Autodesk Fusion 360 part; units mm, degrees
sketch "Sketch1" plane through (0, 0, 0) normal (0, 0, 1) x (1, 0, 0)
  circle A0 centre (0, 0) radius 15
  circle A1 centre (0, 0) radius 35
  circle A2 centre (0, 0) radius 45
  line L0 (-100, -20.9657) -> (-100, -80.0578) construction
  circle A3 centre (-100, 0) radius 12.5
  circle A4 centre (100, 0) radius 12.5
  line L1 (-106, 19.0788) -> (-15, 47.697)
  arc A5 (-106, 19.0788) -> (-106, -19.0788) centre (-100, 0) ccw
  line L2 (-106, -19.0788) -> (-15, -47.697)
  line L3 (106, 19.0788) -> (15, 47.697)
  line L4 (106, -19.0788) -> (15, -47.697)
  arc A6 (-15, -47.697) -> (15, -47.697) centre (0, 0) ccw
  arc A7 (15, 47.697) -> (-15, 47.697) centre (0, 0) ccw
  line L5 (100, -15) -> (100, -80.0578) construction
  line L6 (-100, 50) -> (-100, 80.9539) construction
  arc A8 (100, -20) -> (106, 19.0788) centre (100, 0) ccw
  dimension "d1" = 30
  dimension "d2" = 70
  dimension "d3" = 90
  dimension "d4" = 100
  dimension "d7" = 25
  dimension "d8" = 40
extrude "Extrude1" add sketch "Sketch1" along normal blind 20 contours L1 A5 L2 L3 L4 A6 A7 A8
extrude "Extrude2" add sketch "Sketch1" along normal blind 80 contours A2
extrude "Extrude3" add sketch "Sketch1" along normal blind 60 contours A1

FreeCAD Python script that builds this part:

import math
import FreeCAD as App
import Part
import Sketcher
from FreeCAD import Vector

doc = App.newDocument("Part")
body = doc.addObject("PartDesign::Body", "Body")

sketch1 = body.newObject("Sketcher::SketchObject", "Sketch")
sketch1.AttachmentSupport = (doc.getObject("XY_Plane"), [""])
sketch1.MapMode = "FlatFace"
sketch1.addGeometry([
    Part.LineSegment(Vector(-15, 47.697, 0), Vector(-106, 19.0788, 0)),
    Part.ArcOfCircle(Part.Circle(Vector(-100, 0, 0), Vector(0, 0, 1), 20.000015), math.radians(107.457589), math.radians(252.542411)),
    Part.LineSegment(Vector(-106, -19.0788, 0), Vector(-15, -47.697, 0)),
    Part.ArcOfCircle(Part.Circle(Vector(0, 0, 0), Vector(0, 0, 1), 50.000038), math.radians(-107.457589), math.radians(-72.542411)),
    Part.LineSegment(Vector(15, -47.697, 0), Vector(106, -19.0788, 0)),
    Part.ArcOfCircle(Part.Circle(Vector(100, 0, 0), Vector(0, 0, 1), 20), math.radians(-72.542411), math.radians(72.542411)),
    Part.LineSegment(Vector(106, 19.0788, 0), Vector(15, 47.697, 0)),
    Part.ArcOfCircle(Part.Circle(Vector(0, 0, 0), Vector(0, 0, 1), 50.000038), math.radians(72.542411), math.radians(107.457589)),
    Part.Circle(Vector(-100, 0, 0), Vector(0, 0, 1), 12.5),
    Part.Circle(Vector(0, 0, 0), Vector(0, 0, 1), 45),
    Part.Circle(Vector(100, 0, 0), Vector(0, 0, 1), 12.5),
], False)
sketch1.addConstraint([
    Sketcher.Constraint("Tangent", 0, 2, 1, 1),
    Sketcher.Constraint("Tangent", 1, 2, 2, 1),
    Sketcher.Constraint("Tangent", 2, 2, 3, 1),
    Sketcher.Constraint("Tangent", 3, 2, 4, 1),
    Sketcher.Constraint("Tangent", 4, 2, 5, 1),
    Sketcher.Constraint("Tangent", 5, 2, 6, 1),
    Sketcher.Constraint("Tangent", 6, 2, 7, 1),
    Sketcher.Constraint("Tangent", 7, 2, 0, 1),
    Sketcher.Constraint("Coincident", 3, 3, -1, 1),
    Sketcher.Constraint("Coincident", 7, 3, -1, 1),
    Sketcher.Constraint("Coincident", 9, 3, -1, 1),
    Sketcher.Constraint("Coincident", 8, 3, 1, 3),
    Sketcher.Constraint("Coincident", 10, 3, 5, 3),
    Sketcher.Constraint("Equal", 1, 5),
    Sketcher.Constraint("Equal", 3, 7),
    Sketcher.Constraint("Equal", 8, 10),
    Sketcher.Constraint("Symmetric", 1, 3, 5, 3, -1, 1),
    Sketcher.Constraint("PointOnObject", 1, 3, -1),
    Sketcher.Constraint("Diameter", 8, 25.0),
    Sketcher.Constraint("Diameter", 9, 90.0),
    Sketcher.Constraint("Radius", 1, 20.0),
    Sketcher.Constraint("Radius", 3, 50.0),
    Sketcher.Constraint("DistanceX", 1, 3, -1, 1, 100.0),
])
pad1 = body.newObject("PartDesign::Pad", "Pad")
pad1.Profile = sketch1
pad1.Length = 20

sketch2 = body.newObject("Sketcher::SketchObject", "Sketch001")
sketch2.AttachmentSupport = (doc.getObject("XY_Plane"), [""])
sketch2.MapMode = "FlatFace"
sketch2.addGeometry([
    Part.Circle(Vector(0, 0, 0), Vector(0, 0, 1), 45),
    Part.Circle(Vector(0, 0, 0), Vector(0, 0, 1), 35),
], False)
sketch2.addConstraint([
    Sketcher.Constraint("Coincident", 0, 3, -1, 1),
    Sketcher.Constraint("Coincident", 1, 3, -1, 1),
    Sketcher.Constraint("Diameter", 0, 90.0),
    Sketcher.Constraint("Diameter", 1, 70.0),
])
pad2 = body.newObject("PartDesign::Pad", "Pad001")
pad2.Profile = sketch2
pad2.Length = 80

sketch3 = body.newObject("Sketcher::SketchObject", "Sketch002")
sketch3.AttachmentSupport = (doc.getObject("XY_Plane"), [""])
sketch3.MapMode = "FlatFace"
sketch3.addGeometry([
    Part.Circle(Vector(0, 0, 0), Vector(0, 0, 1), 35),
    Part.Circle(Vector(0, 0, 0), Vector(0, 0, 1), 15),
], False)
sketch3.addConstraint([
    Sketcher.Constraint("Coincident", 0, 3, -1, 1),
    Sketcher.Constraint("Coincident", 1, 3, -1, 1),
    Sketcher.Constraint("Diameter", 0, 70.0),
    Sketcher.Constraint("Diameter", 1, 30.0),
])
pad3 = body.newObject("PartDesign::Pad", "Pad002")
pad3.Profile = sketch3
pad3.Length = 60

doc.recompute()
